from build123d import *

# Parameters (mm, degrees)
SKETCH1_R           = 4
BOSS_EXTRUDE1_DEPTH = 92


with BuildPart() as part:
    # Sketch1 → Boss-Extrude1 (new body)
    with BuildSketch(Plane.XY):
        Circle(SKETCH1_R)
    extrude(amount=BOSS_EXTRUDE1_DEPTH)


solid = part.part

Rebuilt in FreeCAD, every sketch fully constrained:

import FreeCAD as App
import Part
import Sketcher

doc = App.newDocument("Part")
params = doc.addObject("Spreadsheet::Sheet", "Params")
for row, (alias, value) in enumerate([
    ("sketch1_diameter", "8 mm"),
    ("pad1_length", "92 mm"),
], start=1):
    params.set(f"A{row}", alias)
    params.set(f"B{row}", "=" + value)
    params.setAlias(f"B{row}", alias)

body = doc.addObject("PartDesign::Body", "Body")

sketch1 = body.newObject("Sketcher::SketchObject", "Sketch")
sketch1.AttachmentSupport = (doc.getObject("XY_Plane"), [""])
sketch1.MapMode = "FlatFace"
sketch1.addGeometry(Part.Circle(App.Vector(0, 0, 0), App.Vector(0, 0, 1), 4), False)
sketch1.addConstraint(Sketcher.Constraint("Coincident", 0, 3, -1, 1))
sketch1.addConstraint(Sketcher.Constraint("Diameter", 0, 8.0))
sketch1.setExpression("Constraints[1]", "Params.sketch1_diameter")
pad1 = body.newObject("PartDesign::Pad", "Pad")
pad1.Profile = sketch1
pad1.setExpression("Length", "Params.pad1_length")

doc.recompute()
